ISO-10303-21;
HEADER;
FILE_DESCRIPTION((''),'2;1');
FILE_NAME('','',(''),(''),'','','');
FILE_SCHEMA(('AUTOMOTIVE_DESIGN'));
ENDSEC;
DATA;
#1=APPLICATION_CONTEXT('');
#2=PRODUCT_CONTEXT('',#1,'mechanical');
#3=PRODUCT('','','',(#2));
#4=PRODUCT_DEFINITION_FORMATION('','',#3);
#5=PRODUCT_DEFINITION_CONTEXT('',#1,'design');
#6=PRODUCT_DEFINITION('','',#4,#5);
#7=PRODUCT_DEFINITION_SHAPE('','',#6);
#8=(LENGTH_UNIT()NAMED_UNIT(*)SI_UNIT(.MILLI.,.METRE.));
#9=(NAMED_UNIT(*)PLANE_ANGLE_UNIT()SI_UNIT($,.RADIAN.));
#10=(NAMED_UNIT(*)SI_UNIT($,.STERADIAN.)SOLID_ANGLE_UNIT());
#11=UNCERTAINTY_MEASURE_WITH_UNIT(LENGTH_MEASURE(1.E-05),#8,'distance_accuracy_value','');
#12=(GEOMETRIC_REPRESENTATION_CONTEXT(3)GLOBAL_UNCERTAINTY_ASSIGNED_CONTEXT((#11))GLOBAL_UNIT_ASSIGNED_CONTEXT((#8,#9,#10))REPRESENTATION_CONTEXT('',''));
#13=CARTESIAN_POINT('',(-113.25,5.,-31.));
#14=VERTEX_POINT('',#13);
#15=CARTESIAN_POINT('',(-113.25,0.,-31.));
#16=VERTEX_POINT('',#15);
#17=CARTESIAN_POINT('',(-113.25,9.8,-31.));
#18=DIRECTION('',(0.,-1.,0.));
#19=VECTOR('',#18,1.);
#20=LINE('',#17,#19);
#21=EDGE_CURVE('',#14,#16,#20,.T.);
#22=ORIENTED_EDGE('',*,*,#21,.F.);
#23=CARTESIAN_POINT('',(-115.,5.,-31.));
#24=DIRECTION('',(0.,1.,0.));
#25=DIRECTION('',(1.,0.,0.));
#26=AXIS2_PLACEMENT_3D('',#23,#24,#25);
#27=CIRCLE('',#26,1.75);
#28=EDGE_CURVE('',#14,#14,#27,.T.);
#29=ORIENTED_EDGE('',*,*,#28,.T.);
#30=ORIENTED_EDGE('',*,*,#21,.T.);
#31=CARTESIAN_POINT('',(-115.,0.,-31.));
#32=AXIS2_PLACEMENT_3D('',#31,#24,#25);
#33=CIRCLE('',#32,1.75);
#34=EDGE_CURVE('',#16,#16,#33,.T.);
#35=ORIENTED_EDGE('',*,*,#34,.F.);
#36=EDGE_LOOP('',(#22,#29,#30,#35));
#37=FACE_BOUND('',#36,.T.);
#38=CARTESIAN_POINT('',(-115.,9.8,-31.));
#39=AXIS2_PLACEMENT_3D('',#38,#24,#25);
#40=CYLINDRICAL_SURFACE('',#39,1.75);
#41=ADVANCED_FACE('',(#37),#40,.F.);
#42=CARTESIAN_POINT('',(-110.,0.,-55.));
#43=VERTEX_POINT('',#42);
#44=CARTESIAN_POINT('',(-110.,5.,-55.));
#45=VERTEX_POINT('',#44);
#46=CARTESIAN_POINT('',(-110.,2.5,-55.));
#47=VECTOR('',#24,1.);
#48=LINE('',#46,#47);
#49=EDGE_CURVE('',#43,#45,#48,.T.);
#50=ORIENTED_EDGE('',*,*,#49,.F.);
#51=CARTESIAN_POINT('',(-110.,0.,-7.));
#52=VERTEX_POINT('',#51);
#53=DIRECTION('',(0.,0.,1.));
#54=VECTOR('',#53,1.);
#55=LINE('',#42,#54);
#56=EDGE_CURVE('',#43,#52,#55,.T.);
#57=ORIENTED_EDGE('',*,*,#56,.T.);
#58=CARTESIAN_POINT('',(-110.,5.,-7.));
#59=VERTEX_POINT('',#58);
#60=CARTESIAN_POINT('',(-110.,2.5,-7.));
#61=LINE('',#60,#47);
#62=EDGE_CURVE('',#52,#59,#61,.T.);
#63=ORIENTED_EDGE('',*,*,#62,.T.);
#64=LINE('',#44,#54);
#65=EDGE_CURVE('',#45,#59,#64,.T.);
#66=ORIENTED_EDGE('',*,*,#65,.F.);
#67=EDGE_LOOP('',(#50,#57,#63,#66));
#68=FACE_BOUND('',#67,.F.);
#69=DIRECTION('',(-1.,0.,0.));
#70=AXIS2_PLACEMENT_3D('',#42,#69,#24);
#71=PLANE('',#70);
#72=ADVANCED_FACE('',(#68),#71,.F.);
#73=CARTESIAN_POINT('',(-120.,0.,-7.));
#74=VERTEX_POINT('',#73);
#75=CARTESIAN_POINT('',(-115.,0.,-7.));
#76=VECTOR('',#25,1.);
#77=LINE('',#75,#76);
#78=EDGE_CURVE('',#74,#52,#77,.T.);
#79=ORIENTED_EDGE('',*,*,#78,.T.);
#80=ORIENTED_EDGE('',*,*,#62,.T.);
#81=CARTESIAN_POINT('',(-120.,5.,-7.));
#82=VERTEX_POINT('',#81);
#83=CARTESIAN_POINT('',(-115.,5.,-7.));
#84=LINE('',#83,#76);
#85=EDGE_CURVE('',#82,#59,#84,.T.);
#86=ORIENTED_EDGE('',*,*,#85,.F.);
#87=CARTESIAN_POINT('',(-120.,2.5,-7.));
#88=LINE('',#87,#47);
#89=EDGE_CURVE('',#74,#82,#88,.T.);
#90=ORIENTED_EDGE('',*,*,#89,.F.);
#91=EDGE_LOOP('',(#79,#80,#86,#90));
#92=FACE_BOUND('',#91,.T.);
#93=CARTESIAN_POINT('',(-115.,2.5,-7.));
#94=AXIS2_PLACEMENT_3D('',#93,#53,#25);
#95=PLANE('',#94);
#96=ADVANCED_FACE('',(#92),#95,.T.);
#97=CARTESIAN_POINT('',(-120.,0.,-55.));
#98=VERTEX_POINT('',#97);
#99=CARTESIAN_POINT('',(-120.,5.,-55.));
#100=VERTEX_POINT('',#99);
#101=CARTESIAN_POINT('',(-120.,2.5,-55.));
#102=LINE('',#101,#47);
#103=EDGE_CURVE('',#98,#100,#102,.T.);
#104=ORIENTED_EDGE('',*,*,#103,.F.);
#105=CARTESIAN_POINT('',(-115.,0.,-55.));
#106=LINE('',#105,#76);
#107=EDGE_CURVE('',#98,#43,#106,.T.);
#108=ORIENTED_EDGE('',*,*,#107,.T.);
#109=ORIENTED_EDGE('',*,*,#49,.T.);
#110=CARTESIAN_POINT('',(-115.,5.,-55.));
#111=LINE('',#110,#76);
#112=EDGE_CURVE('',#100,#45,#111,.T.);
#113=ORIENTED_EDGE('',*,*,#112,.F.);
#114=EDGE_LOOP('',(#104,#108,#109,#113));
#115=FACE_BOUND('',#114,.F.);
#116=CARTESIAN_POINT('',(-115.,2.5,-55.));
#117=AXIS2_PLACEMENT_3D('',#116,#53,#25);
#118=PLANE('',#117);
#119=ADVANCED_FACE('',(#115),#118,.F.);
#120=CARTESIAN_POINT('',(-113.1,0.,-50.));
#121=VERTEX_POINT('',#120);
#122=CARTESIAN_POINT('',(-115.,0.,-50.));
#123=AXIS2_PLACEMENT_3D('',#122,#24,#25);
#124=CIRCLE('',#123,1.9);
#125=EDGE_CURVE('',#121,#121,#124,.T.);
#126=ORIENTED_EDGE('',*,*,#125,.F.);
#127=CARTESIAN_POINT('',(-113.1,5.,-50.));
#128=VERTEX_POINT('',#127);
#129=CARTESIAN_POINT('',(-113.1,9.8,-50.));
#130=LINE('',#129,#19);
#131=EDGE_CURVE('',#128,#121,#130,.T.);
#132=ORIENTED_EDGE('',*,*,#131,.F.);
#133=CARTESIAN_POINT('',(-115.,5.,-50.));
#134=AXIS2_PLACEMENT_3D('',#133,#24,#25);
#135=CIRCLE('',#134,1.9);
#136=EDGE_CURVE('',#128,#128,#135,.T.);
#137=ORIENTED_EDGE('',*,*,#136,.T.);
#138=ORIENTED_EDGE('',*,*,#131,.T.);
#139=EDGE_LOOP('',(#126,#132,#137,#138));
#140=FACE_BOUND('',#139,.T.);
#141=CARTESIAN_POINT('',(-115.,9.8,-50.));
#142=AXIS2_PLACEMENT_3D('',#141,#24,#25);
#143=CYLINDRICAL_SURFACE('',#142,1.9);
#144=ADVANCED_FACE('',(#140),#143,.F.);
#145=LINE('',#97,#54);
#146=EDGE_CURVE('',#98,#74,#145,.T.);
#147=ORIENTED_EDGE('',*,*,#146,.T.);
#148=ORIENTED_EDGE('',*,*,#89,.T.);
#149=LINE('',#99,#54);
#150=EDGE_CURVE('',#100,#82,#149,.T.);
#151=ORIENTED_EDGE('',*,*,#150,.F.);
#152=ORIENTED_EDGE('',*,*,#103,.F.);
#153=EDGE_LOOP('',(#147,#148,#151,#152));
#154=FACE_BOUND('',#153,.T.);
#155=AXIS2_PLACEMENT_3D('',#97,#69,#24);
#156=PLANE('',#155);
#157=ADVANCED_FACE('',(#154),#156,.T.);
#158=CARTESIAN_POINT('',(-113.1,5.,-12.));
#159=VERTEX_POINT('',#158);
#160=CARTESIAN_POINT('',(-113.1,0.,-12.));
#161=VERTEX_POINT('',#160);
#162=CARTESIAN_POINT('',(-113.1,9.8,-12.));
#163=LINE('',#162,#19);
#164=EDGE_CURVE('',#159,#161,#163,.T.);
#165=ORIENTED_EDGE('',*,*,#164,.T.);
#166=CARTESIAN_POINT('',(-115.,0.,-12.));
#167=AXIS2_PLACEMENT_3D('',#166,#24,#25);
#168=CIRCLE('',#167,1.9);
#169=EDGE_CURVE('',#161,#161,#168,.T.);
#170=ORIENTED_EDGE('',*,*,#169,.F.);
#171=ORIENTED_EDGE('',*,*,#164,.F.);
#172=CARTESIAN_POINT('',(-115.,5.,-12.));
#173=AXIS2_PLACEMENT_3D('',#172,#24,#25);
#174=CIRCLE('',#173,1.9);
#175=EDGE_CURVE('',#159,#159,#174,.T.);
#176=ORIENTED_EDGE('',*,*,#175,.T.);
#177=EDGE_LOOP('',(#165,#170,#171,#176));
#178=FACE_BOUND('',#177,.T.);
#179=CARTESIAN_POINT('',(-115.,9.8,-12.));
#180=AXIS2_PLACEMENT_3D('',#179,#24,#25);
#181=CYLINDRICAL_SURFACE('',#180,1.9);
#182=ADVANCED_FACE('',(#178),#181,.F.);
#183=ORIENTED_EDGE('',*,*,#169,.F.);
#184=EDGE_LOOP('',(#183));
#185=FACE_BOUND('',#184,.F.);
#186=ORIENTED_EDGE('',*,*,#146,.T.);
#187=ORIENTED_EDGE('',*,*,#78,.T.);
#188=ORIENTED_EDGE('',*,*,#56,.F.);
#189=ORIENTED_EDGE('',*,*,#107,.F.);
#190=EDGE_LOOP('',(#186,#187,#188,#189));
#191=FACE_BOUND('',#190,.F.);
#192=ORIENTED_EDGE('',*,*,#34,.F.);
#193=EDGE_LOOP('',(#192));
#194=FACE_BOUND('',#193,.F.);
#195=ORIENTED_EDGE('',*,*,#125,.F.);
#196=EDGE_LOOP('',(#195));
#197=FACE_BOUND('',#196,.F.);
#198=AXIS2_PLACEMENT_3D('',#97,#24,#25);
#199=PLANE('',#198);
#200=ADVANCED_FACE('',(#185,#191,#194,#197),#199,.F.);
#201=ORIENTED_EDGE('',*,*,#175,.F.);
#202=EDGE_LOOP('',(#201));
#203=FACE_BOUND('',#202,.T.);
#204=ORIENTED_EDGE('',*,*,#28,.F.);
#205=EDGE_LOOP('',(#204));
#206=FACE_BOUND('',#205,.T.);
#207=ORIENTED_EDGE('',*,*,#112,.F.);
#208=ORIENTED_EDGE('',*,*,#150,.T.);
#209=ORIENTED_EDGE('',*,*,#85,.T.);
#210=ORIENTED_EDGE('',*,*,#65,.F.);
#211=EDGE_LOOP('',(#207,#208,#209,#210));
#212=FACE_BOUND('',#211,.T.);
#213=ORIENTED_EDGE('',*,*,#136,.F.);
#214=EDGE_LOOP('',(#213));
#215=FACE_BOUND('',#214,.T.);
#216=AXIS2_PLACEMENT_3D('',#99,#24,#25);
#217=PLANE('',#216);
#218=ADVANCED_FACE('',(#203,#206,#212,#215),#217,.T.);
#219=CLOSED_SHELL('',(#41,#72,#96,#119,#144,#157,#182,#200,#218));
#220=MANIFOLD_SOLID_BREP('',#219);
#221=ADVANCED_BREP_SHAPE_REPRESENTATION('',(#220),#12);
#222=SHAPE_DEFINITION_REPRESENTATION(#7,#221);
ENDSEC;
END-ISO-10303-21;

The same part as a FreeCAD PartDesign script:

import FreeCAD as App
import Part
import Sketcher
from FreeCAD import Vector
Q = App.Units.Quantity


def add_polygon(sketch, points):
    """Adds a closed chain of lines whose ends are joined by coincident constraints."""
    first, n = sketch.GeometryCount, len(points)
    for a, b in zip(points, points[1:] + points[:1]):
        sketch.addGeometry(Part.LineSegment(App.Vector(*a, 0), App.Vector(*b, 0)), False)
    for i in range(n):
        sketch.addConstraint(Sketcher.Constraint("Coincident", first + i, 2, first + (i + 1) % n, 1))

doc = App.newDocument("Part")
params = doc.addObject("Spreadsheet::Sheet", "Params")
for row, (alias, value) in enumerate([
    ("sketch1_diameter", "3.8 mm"),
    ("pad1_length", "10 mm"),
    ("sketch2_diameter", "3.8 mm"),
    ("pad2_length", "10 mm"),
    ("sketch3_diameter", "3.5 mm"),
    ("pad3_length", "10 mm"),
    ("sketch4_width", "10 mm"),
    ("sketch4_height", "5 mm"),
    ("pad4_length", "48 mm"),
], start=1):
    params.set(f"A{row}", alias)
    params.set(f"B{row}", "=" + value)
    params.setAlias(f"B{row}", alias)

body = doc.addObject("PartDesign::Body", "Body")

# Sketch on XZ plane
sketch1 = body.newObject("Sketcher::SketchObject", "Sketch")
sketch1.AttachmentSupport = (doc.getObject("XZ_Plane"), [""])
sketch1.MapMode = "FlatFace"
sketch1.addGeometry(Part.Circle(Vector(-115, -50, 0), Vector(0, 0, 1), 1.9), False)
sketch1.addConstraint(Sketcher.Constraint("Diameter", 0, Q("3.8 mm")))
sketch1.addConstraint(Sketcher.Constraint("DistanceX", 0, 3, -1, 1, Q("115 mm")))
sketch1.addConstraint(Sketcher.Constraint("DistanceY", 0, 3, -1, 1, Q("50 mm")))
sketch1.setExpression("Constraints[0]", "Params.sketch1_diameter")
pad1 = body.newObject("PartDesign::Pad", "Pad")
pad1.Profile = sketch1
pad1.setExpression("Length", "Params.pad1_length")
body2 = doc.addObject("PartDesign::Body", "Body001")

# Sketch on XZ plane
sketch2 = body2.newObject("Sketcher::SketchObject", "Sketch001")
sketch2.AttachmentSupport = (doc.getObject("XZ_Plane001"), [""])
sketch2.MapMode = "FlatFace"
sketch2.addGeometry(Part.Circle(Vector(-115, -12, 0), Vector(0, 0, 1), 1.9), False)
sketch2.addConstraint(Sketcher.Constraint("Diameter", 0, Q("3.8 mm")))
sketch2.addConstraint(Sketcher.Constraint("DistanceX", 0, 3, -1, 1, Q("115 mm")))
sketch2.addConstraint(Sketcher.Constraint("DistanceY", 0, 3, -1, 1, Q("12 mm")))
sketch2.setExpression("Constraints[0]", "Params.sketch2_diameter")
pad2 = body2.newObject("PartDesign::Pad", "Pad001")
pad2.Profile = sketch2
pad2.setExpression("Length", "Params.pad2_length")
body3 = doc.addObject("PartDesign::Body", "Body002")
body3.AllowCompound = True

# Sketch on XZ plane
sketch3 = body3.newObject("Sketcher::SketchObject", "Sketch002")
sketch3.AttachmentSupport = (doc.getObject("XZ_Plane002"), [""])
sketch3.MapMode = "FlatFace"
sketch3.addGeometry(Part.Circle(Vector(-115, -31, 0), Vector(0, 0, 1), 1.75), False)
sketch3.addConstraint(Sketcher.Constraint("Diameter", 0, Q("3.5 mm")))
sketch3.addConstraint(Sketcher.Constraint("DistanceX", 0, 3, -1, 1, Q("115 mm")))
sketch3.addConstraint(Sketcher.Constraint("DistanceY", 0, 3, -1, 1, Q("31 mm")))
sketch3.setExpression("Constraints[0]", "Params.sketch3_diameter")
pad3 = body3.newObject("PartDesign::Pad", "Pad002")
pad3.Profile = sketch3
pad3.setExpression("Length", "Params.pad3_length")
doc.recompute()

boolean = body3.newObject("PartDesign::Boolean", "Boolean")
boolean.Type = "Fuse"
boolean.addObjects([body])
doc.recompute()

boolean2 = body3.newObject("PartDesign::Boolean", "Boolean001")
boolean2.Type = "Fuse"
boolean2.addObjects([body2])
body4 = doc.addObject("PartDesign::Body", "Body003")
body4.AllowCompound = True
doc.recompute()

body3.Placement = App.Placement(Vector(0, 9.8, 0), App.Rotation(Vector(0, 0, 1), 0))
boolean3 = body4.newObject("PartDesign::Boolean", "Boolean002")
boolean3.Type = "Fuse"
boolean3.addObjects([body3])
body5 = doc.addObject("PartDesign::Body", "Body004")

# Sketch on XY plane
sketch4 = body5.newObject("Sketcher::SketchObject", "Sketch003")
sketch4.AttachmentSupport = (doc.getObject("XY_Plane004"), [""])
sketch4.MapMode = "FlatFace"
sketch4.AttachmentOffset = App.Placement(Vector(0, 0, -55), App.Rotation())
add_polygon(sketch4, [(-120, 5), (-120, 0), (-110, 0), (-110, 5)])  # lines 0-3
sketch4.addConstraint(Sketcher.Constraint("Vertical", 0))
sketch4.addConstraint(Sketcher.Constraint("Horizontal", 1))
sketch4.addConstraint(Sketcher.Constraint("Vertical", 2))
sketch4.addConstraint(Sketcher.Constraint("Horizontal", 3))
sketch4.addConstraint(Sketcher.Constraint("PointOnObject", 0, 2, -1))
sketch4.addConstraint(Sketcher.Constraint("DistanceX", 1, 1, 1, 2, Q("10 mm")))
sketch4.addConstraint(Sketcher.Constraint("DistanceY", 0, 2, 0, 1, Q("5 mm")))
sketch4.addConstraint(Sketcher.Constraint("DistanceX", 0, 2, -1, 1, Q("120 mm")))
sketch4.setExpression("Constraints[9]", "Params.sketch4_width")
sketch4.setExpression("Constraints[10]", "Params.sketch4_height")
pad4 = body5.newObject("PartDesign::Pad", "Pad003")
pad4.Profile = sketch4
pad4.setExpression("Length", "Params.pad4_length")
doc.recompute()

boolean4 = body5.newObject("PartDesign::Boolean", "Boolean003")
boolean4.Type = "Cut"
boolean4.addObjects([body4])

doc.recompute()
